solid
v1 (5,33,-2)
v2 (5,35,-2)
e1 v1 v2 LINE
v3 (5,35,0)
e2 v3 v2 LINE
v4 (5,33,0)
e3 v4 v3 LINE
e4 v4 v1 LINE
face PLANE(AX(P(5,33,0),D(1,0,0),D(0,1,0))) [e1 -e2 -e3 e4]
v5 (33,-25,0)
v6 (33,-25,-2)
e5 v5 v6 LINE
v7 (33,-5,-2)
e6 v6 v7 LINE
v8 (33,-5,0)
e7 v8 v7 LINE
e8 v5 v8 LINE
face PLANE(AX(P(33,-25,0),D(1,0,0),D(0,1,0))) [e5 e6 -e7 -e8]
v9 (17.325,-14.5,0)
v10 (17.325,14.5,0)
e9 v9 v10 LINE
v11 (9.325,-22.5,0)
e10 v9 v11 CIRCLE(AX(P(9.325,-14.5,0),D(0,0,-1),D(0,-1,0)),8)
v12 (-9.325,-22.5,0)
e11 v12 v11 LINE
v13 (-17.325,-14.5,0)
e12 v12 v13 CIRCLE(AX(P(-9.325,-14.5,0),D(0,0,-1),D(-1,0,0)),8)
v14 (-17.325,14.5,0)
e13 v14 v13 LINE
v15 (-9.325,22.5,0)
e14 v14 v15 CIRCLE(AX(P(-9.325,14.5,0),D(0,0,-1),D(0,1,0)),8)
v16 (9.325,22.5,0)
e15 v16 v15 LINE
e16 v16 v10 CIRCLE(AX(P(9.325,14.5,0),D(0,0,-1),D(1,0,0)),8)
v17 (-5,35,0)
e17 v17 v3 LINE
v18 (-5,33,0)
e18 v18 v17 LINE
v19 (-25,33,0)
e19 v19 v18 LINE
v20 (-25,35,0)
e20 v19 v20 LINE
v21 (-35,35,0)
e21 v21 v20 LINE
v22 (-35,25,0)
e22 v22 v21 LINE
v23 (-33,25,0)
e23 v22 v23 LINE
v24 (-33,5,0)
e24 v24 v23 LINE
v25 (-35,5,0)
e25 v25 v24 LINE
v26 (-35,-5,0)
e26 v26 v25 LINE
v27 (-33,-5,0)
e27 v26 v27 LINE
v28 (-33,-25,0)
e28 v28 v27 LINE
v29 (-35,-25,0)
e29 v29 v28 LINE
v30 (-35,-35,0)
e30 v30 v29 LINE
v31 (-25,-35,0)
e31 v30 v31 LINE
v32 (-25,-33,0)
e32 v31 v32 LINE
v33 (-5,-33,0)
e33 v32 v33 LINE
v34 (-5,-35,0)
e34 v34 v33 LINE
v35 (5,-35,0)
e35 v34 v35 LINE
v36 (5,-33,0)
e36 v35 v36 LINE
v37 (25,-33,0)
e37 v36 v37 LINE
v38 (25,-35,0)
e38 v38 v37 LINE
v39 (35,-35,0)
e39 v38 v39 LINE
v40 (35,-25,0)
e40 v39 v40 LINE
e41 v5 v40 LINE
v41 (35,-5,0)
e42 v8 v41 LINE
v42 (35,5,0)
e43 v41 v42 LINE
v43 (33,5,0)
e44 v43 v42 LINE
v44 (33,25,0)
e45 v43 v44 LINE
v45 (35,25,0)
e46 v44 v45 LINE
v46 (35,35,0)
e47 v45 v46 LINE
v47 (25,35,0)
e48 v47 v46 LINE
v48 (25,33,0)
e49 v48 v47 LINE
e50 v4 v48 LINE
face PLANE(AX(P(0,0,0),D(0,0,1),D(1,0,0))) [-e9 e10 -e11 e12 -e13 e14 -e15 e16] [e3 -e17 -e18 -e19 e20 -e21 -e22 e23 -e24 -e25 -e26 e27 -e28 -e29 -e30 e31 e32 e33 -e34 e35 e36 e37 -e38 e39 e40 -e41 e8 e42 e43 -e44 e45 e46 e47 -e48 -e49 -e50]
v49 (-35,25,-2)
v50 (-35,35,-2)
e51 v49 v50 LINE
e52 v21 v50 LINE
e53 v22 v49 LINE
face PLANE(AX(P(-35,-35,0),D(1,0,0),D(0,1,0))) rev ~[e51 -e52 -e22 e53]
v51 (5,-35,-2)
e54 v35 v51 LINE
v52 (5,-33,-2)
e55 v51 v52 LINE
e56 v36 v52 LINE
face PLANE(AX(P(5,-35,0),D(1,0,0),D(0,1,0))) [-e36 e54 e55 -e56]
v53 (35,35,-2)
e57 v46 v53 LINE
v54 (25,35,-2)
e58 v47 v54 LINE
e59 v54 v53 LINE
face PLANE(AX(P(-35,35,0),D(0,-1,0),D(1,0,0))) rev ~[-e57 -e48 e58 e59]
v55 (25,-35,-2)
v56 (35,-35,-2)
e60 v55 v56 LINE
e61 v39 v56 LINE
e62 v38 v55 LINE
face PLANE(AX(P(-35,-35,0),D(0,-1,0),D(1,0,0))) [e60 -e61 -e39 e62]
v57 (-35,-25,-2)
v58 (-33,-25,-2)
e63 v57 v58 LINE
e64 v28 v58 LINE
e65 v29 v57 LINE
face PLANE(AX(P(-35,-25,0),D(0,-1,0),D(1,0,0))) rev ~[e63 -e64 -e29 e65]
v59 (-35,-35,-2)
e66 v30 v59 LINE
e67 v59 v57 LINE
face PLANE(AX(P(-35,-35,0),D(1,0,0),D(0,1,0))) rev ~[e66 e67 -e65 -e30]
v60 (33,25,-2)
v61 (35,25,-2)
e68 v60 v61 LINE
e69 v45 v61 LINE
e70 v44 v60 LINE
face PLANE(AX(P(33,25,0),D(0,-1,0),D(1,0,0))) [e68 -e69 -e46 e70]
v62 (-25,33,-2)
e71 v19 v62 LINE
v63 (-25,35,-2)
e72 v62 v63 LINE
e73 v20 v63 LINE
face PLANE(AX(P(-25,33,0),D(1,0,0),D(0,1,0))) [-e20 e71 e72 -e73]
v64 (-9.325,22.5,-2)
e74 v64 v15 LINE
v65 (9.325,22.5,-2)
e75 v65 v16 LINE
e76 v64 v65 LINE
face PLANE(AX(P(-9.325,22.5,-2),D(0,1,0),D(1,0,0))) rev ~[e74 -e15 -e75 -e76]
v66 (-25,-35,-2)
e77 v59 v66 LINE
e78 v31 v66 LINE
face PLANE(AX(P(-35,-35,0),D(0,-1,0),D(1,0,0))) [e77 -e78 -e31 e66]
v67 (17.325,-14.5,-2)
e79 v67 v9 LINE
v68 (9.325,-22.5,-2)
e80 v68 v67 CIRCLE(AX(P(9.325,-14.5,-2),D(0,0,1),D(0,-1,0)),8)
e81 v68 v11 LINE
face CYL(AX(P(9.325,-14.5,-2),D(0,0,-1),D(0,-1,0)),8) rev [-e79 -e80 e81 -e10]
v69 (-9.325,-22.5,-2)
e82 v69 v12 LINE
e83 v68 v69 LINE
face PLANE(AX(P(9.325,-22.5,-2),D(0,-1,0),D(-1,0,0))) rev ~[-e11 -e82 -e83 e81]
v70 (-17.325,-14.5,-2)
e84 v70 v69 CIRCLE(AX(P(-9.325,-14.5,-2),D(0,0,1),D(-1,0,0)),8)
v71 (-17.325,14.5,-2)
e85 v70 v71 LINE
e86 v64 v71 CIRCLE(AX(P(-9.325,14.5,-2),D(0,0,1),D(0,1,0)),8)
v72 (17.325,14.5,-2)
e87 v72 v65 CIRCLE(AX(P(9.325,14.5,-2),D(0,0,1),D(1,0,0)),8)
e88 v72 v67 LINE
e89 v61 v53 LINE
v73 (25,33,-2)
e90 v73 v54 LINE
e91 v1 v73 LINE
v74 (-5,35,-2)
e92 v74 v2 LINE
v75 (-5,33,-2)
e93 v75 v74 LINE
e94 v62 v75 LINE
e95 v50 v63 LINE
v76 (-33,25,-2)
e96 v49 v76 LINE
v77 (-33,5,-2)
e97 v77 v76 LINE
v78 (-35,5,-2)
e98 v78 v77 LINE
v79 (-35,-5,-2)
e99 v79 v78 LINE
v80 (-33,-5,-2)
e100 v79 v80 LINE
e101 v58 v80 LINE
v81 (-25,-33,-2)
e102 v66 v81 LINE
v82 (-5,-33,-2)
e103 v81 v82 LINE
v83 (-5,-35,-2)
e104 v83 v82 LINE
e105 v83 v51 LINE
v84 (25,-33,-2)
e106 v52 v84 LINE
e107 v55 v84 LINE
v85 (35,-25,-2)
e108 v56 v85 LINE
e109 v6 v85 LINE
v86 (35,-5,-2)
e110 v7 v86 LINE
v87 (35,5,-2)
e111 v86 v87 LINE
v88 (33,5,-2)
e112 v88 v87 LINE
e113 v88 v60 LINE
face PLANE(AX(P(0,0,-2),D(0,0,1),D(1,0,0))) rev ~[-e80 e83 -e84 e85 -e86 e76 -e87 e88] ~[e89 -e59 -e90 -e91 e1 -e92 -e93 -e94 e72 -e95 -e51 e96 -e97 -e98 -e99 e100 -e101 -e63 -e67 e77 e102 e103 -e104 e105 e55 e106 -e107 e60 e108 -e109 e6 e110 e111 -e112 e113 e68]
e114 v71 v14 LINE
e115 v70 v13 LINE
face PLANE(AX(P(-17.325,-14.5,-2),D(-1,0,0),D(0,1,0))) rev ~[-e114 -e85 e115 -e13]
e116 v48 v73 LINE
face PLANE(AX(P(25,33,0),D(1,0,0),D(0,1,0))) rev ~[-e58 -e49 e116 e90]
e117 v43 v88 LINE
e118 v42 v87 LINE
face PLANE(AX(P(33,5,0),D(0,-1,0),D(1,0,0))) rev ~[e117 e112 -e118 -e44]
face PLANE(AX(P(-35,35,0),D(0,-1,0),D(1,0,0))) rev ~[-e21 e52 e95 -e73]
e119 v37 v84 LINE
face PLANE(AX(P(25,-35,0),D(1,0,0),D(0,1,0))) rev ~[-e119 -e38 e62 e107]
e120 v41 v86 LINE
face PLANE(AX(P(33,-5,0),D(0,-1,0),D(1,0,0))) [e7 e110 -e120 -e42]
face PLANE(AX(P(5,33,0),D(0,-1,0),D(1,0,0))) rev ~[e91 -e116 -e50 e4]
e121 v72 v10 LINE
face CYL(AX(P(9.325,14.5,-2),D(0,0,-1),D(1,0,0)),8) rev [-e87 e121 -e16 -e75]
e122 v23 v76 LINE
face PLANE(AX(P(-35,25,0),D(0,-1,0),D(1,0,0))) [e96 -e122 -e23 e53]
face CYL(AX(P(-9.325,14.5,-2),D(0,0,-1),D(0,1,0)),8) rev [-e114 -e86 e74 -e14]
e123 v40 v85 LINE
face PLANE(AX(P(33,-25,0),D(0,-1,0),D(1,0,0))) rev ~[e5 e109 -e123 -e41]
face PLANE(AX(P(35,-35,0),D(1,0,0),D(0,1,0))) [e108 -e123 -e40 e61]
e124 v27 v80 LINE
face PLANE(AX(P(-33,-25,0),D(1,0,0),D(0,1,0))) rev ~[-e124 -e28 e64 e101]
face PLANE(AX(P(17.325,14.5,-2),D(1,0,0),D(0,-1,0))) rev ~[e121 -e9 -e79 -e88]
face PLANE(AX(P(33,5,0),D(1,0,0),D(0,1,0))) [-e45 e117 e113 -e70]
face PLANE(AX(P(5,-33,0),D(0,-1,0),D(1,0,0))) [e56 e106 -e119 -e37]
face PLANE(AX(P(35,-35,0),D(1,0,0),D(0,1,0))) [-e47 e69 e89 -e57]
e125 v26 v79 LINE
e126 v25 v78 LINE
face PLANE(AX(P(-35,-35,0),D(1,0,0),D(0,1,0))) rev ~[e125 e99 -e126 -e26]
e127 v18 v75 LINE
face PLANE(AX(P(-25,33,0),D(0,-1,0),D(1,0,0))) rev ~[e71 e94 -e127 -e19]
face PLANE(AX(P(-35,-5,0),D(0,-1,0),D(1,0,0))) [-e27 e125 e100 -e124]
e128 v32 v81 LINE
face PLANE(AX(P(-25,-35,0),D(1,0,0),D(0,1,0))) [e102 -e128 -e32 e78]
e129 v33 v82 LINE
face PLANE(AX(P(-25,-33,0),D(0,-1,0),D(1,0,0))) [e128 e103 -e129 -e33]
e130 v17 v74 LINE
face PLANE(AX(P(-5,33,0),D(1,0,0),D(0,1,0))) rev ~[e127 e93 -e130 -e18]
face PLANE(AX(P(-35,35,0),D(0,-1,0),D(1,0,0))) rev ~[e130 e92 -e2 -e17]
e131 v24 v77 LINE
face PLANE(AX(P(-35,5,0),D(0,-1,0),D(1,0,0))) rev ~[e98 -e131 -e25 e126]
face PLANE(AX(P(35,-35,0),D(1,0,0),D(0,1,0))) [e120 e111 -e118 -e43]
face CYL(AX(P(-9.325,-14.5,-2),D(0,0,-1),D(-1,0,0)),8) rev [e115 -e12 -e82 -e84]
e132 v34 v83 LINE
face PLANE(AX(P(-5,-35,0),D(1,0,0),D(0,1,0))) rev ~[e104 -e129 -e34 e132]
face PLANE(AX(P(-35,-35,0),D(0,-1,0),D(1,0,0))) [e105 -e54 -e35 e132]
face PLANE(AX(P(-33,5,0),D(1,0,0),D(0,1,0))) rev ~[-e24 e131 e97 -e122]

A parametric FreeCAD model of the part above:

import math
import FreeCAD as App
import Part
import Sketcher
from FreeCAD import Vector


def add_polygon(sketch, points):
    """Adds a closed chain of lines whose ends are joined by coincident constraints."""
    first, n = sketch.GeometryCount, len(points)
    for a, b in zip(points, points[1:] + points[:1]):
        sketch.addGeometry(Part.LineSegment(App.Vector(*a, 0), App.Vector(*b, 0)), False)
    for i in range(n):
        sketch.addConstraint(Sketcher.Constraint("Coincident", first + i, 2, first + (i + 1) % n, 1))

doc = App.newDocument("Part")
params = doc.addObject("Spreadsheet::Sheet", "Params")
for row, (alias, value) in enumerate([
    ("sketch1_width", "70 mm"),
    ("pad1_length", "2 mm"),
    ("sketch2_width", "2 mm"),
    ("sketch2_width2", "20 mm"),
    ("pocket1_length", "2 mm"),
    ("sketch3_radius", "8 mm"),
    ("sketch3_height", "29 mm"),
    ("sketch3_width", "18.65 mm"),
    ("pocket2_length", "10 mm"),
], start=1):
    params.set(f"A{row}", alias)
    params.set(f"B{row}", "=" + value)
    params.setAlias(f"B{row}", alias)

body = doc.addObject("PartDesign::Body", "Body")

# Sketch on XY plane
sketch1 = body.newObject("Sketcher::SketchObject", "Sketch")
sketch1.AttachmentSupport = (doc.getObject("XY_Plane"), [""])
sketch1.MapMode = "FlatFace"
add_polygon(sketch1, [(-35, 35), (-35, -35), (35, -35), (35, 35)])  # lines 0-3
sketch1.addConstraint([
    Sketcher.Constraint("Vertical", 0),
    Sketcher.Constraint("Horizontal", 1),
    Sketcher.Constraint("Vertical", 2),
    Sketcher.Constraint("Horizontal", 3),
    Sketcher.Constraint("Symmetric", 0, 2, 2, 2, -1, 1),
    Sketcher.Constraint("Equal", 3, 0),
    Sketcher.Constraint("DistanceX", 1, 1, 1, 2, 70.0),
])
sketch1.setExpression("Constraints[10]", "Params.sketch1_width")
pad1 = body.newObject("PartDesign::Pad", "Pad")
pad1.Profile = sketch1
pad1.setExpression("Length", "Params.pad1_length")
pad1.Reversed = True

# Sketch on XY plane
sketch2 = body.newObject("Sketcher::SketchObject", "Sketch001")
sketch2.AttachmentSupport = (doc.getObject("XY_Plane"), [""])
sketch2.MapMode = "FlatFace"
add_polygon(sketch2, [(-35, 25), (-35, 5), (-33, 5), (-33, 25)])  # lines 0-3
add_polygon(sketch2, [(-35, -5), (-35, -25), (-33, -25), (-33, -5)])  # lines 4-7
add_polygon(sketch2, [(-25, -33), (-25, -35), (-5, -35), (-5, -33)])  # lines 8-11
add_polygon(sketch2, [(5, -33), (5, -35), (25, -35), (25, -33)])  # lines 12-15
add_polygon(sketch2, [(33, -5), (33, -25), (35, -25), (35, -5)])  # lines 16-19
add_polygon(sketch2, [(33, 25), (33, 5), (35, 5), (35, 25)])  # lines 20-23
add_polygon(sketch2, [(5, 35), (5, 33), (25, 33), (25, 35)])  # lines 24-27
add_polygon(sketch2, [(-25, 35), (-25, 33), (-5, 33), (-5, 35)])  # lines 28-31
sketch2.addConstraint([
    Sketcher.Constraint("Vertical", 0),
    Sketcher.Constraint("Horizontal", 1),
    Sketcher.Constraint("Vertical", 2),
    Sketcher.Constraint("Horizontal", 3),
    Sketcher.Constraint("Vertical", 4),
    Sketcher.Constraint("Horizontal", 5),
    Sketcher.Constraint("Vertical", 6),
    Sketcher.Constraint("Horizontal", 7),
    Sketcher.Constraint("Vertical", 8),
    Sketcher.Constraint("Horizontal", 9),
    Sketcher.Constraint("Vertical", 10),
    Sketcher.Constraint("Horizontal", 11),
    Sketcher.Constraint("Vertical", 12),
    Sketcher.Constraint("Horizontal", 13),
    Sketcher.Constraint("Vertical", 14),
    Sketcher.Constraint("Horizontal", 15),
    Sketcher.Constraint("Vertical", 16),
    Sketcher.Constraint("Horizontal", 17),
    Sketcher.Constraint("Vertical", 18),
    Sketcher.Constraint("Horizontal", 19),
    Sketcher.Constraint("Vertical", 20),
    Sketcher.Constraint("Horizontal", 21),
    Sketcher.Constraint("Vertical", 22),
    Sketcher.Constraint("Horizontal", 23),
    Sketcher.Constraint("Vertical", 24),
    Sketcher.Constraint("Horizontal", 25),
    Sketcher.Constraint("Vertical", 26),
    Sketcher.Constraint("Horizontal", 27),
    Sketcher.Constraint("Vertical", 28),
    Sketcher.Constraint("Horizontal", 29),
    Sketcher.Constraint("Vertical", 30),
    Sketcher.Constraint("Horizontal", 31),
    Sketcher.Constraint("Symmetric", 2, 2, 16, 2, -1, 1),
    Sketcher.Constraint("Symmetric", 0, 2, 18, 2, -1, 1),
    Sketcher.Constraint("Symmetric", 6, 2, 20, 2, -1, 1),
    Sketcher.Constraint("Symmetric", 4, 2, 22, 2, -1, 1),
    Sketcher.Constraint("Symmetric", 10, 2, 24, 2, -1, 1),
    Sketcher.Constraint("Symmetric", 8, 2, 26, 2, -1, 1),
    Sketcher.Constraint("Symmetric", 14, 2, 28, 2, -1, 1),
    Sketcher.Constraint("Symmetric", 12, 2, 30, 2, -1, 1),
    Sketcher.Constraint("Symmetric", 9, 2, 12, 2, -2),
    Sketcher.Constraint("Symmetric", 11, 2, 14, 2, -2),
    Sketcher.Constraint("Symmetric", 5, 2, 16, 2, -2),
    Sketcher.Constraint("Symmetric", 7, 2, 18, 2, -2),
    Sketcher.Constraint("Equal", 31, 0),
    Sketcher.Constraint("Equal", 23, 8),
    Sketcher.Constraint("DistanceX", 1, 1, 1, 2, 2.0),
    Sketcher.Constraint("DistanceX", 9, 1, 9, 2, 20.0),
    Sketcher.Constraint("DistanceX", 0, 2, -1, 1, 35.0),
    Sketcher.Constraint("DistanceY", -1, 1, 0, 2, 5.0),
    Sketcher.Constraint("DistanceX", 8, 2, -1, 1, 25.0),
    Sketcher.Constraint("DistanceY", 8, 2, -1, 1, 35.0),
])
sketch2.setExpression("Constraints[78]", "Params.sketch2_width")
sketch2.setExpression("Constraints[79]", "Params.sketch2_width2")
pocket1 = body.newObject("PartDesign::Pocket", "Pocket")
pocket1.Profile = sketch2
pocket1.setExpression("Length", "Params.pocket1_length")

# Sketch on XY plane
sketch3 = body.newObject("Sketcher::SketchObject", "Sketch002")
sketch3.AttachmentSupport = (doc.getObject("XY_Plane"), [""])
sketch3.MapMode = "FlatFace"
sketch3.AttachmentOffset = App.Placement(Vector(0, 0, -2), App.Rotation())
sketch3.addGeometry([
    Part.LineSegment(Vector(9.325, -22.5, 0), Vector(-9.325, -22.5, 0)),  # 0
    Part.ArcOfCircle(Part.Circle(Vector(-9.325, -14.5, 0), Vector(0, 0, 1), 8), math.radians(-180), math.radians(-90)),  # 1
    Part.LineSegment(Vector(-17.325, -14.5, 0), Vector(-17.325, 14.5, 0)),  # 2
    Part.ArcOfCircle(Part.Circle(Vector(-9.325, 14.5, 0), Vector(0, 0, 1), 8), math.radians(90), math.radians(180)),  # 3
    Part.LineSegment(Vector(-9.325, 22.5, 0), Vector(9.325, 22.5, 0)),  # 4
    Part.ArcOfCircle(Part.Circle(Vector(9.325, 14.5, 0), Vector(0, 0, 1), 8), math.radians(0), math.radians(90)),  # 5
    Part.LineSegment(Vector(17.325, 14.5, 0), Vector(17.325, -14.5, 0)),  # 6
    Part.ArcOfCircle(Part.Circle(Vector(9.325, -14.5, 0), Vector(0, 0, 1), 8), math.radians(-90), math.radians(0)),  # 7
], False)
sketch3.addConstraint([
    Sketcher.Constraint("Tangent", 0, 2, 1, 2),
    Sketcher.Constraint("Tangent", 1, 1, 2, 1),
    Sketcher.Constraint("Tangent", 2, 2, 3, 2),
    Sketcher.Constraint("Tangent", 3, 1, 4, 1),
    Sketcher.Constraint("Tangent", 4, 2, 5, 2),
    Sketcher.Constraint("Tangent", 5, 1, 6, 1),
    Sketcher.Constraint("Tangent", 6, 2, 7, 2),
    Sketcher.Constraint("Tangent", 7, 1, 0, 1),
    Sketcher.Constraint("Horizontal", 0),
    Sketcher.Constraint("Vertical", 2),
    Sketcher.Constraint("Horizontal", 4),
    Sketcher.Constraint("Vertical", 6),
    Sketcher.Constraint("Equal", 1, 3),
    Sketcher.Constraint("Equal", 3, 5),
    Sketcher.Constraint("Equal", 5, 7),
    Sketcher.Constraint("Symmetric", 1, 3, 5, 3, -1, 1),
    Sketcher.Constraint("Radius", 1, 8.0),
    Sketcher.Constraint("DistanceY", 2, 1, 2, 2, 29.0),
    Sketcher.Constraint("DistanceX", 0, 2, 0, 1, 18.65),
])
sketch3.setExpression("Constraints[16]", "Params.sketch3_radius")
sketch3.setExpression("Constraints[17]", "Params.sketch3_height")
sketch3.setExpression("Constraints[18]", "Params.sketch3_width")
pocket2 = body.newObject("PartDesign::Pocket", "Pocket001")
pocket2.Profile = sketch3
pocket2.setExpression("Length", "Params.pocket2_length")
pocket2.Reversed = True

doc.recompute()
